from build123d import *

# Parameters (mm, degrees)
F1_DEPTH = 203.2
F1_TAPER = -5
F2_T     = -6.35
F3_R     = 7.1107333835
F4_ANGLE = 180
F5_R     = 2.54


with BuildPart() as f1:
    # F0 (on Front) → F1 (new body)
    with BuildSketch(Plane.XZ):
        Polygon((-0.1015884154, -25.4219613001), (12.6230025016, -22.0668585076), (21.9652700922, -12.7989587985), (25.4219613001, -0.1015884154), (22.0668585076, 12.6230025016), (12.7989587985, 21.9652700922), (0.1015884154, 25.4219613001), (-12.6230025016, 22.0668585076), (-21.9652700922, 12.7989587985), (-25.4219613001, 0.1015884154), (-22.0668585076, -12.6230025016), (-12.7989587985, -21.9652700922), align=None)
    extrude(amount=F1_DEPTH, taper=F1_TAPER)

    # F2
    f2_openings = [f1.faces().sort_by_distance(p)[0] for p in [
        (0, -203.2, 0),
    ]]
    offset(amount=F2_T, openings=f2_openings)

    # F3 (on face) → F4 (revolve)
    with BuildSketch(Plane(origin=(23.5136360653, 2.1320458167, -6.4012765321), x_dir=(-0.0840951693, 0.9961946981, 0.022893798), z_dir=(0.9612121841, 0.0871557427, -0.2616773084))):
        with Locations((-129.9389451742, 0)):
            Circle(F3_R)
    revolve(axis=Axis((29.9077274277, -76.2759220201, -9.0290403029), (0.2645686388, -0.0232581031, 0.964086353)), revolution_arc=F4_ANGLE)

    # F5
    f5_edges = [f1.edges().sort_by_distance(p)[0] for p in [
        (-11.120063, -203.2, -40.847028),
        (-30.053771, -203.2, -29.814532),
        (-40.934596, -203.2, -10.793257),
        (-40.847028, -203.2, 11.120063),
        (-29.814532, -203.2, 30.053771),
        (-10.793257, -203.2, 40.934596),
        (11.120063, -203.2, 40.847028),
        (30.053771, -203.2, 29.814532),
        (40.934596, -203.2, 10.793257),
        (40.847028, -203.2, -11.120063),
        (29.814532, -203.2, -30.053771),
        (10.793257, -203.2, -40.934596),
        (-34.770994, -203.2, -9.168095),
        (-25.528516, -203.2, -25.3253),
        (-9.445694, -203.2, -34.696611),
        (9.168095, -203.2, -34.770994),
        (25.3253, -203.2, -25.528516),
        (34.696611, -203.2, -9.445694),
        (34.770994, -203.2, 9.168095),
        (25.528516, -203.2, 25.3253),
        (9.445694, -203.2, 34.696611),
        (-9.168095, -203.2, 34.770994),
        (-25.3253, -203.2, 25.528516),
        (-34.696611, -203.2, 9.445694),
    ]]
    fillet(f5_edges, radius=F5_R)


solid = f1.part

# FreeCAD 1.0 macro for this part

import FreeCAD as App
import Part
import Sketcher
Q = App.Units.Quantity


def edges_at(feature, points):
    """Names of the edges that pass closest to the given points."""
    edges = feature.Shape.Edges
    near = lambda p: min(range(len(edges)), key=lambda i: edges[i].distToShape(Part.Vertex(*p))[0])
    return sorted({f"Edge{near(p) + 1}" for p in points})


def faces_at(feature, points):
    """Names of the faces that lie closest to the given points."""
    faces = feature.Shape.Faces
    near = lambda p: min(range(len(faces)), key=lambda i: faces[i].distToShape(Part.Vertex(*p))[0])
    return sorted({f"Face{near(p) + 1}" for p in points})


def add_polygon(sketch, points):
    """Adds a closed chain of lines whose ends are joined by coincident constraints."""
    first, n = sketch.GeometryCount, len(points)
    for a, b in zip(points, points[1:] + points[:1]):
        sketch.addGeometry(Part.LineSegment(App.Vector(*a, 0), App.Vector(*b, 0)), False)
    for i in range(n):
        sketch.addConstraint(Sketcher.Constraint("Coincident", first + i, 2, first + (i + 1) % n, 1))

doc = App.newDocument("Part")
body = doc.addObject("PartDesign::Body", "Body")

# Sketch on XZ plane
sketch1 = doc.addObject("Sketcher::SketchObject", "Sketch")
body.addObject(sketch1)
sketch1.AttachmentSupport = (doc.XZ_Plane, [""])
sketch1.MapMode = "FlatFace"
add_polygon(sketch1, [(0, -25), (13, -22), (22, -13), (25, 0), (22, 13), (13, 22), (0, 25), (-13, 22), (-22, 13), (-25, 0), (-22, -13), (-13, -22)])  # lines 0-11
sketch1.addConstraint([
    Sketcher.Constraint("Symmetric", 0, 2, 6, 2, -1, 1),
    Sketcher.Constraint("Symmetric", 1, 2, 7, 2, -1, 1),
    Sketcher.Constraint("Symmetric", 2, 2, 8, 2, -1, 1),
    Sketcher.Constraint("Symmetric", 3, 2, 9, 2, -1, 1),
    Sketcher.Constraint("Symmetric", 4, 2, 10, 2, -1, 1),
    Sketcher.Constraint("Symmetric", 5, 2, 11, 2, -1, 1),
    Sketcher.Constraint("Perpendicular", 0, 3),
    Sketcher.Constraint("Perpendicular", 1, 4),
    Sketcher.Constraint("Perpendicular", 2, 5),
    Sketcher.Constraint("Equal", 0, 1),
    Sketcher.Constraint("Equal", 1, 2),
    Sketcher.Constraint("Equal", 2, 3),
    Sketcher.Constraint("Equal", 3, 4),
    Sketcher.Constraint("Equal", 4, 5),
    Sketcher.Constraint("DistanceY", 0, 2, 1, 2, Q("9.2679 mm")),
    Sketcher.Constraint("Distance", 0, Q("13.159481 mm")),
    Sketcher.Constraint("DistanceY", 0, 2, -1, 1, Q("22.066859 mm")),
    Sketcher.Constraint("DistanceX", -1, 1, 1, 2, Q("21.96527 mm")),
])
pad1 = doc.addObject("PartDesign::Pad", "Pad")
body.addObject(pad1)
pad1.Profile = sketch1
pad1.Length = Q("8 in")
pad1.TaperAngle = 5
doc.recompute()

thickness = doc.addObject("PartDesign::Thickness", "Thickness")
body.addObject(thickness)
thickness.Base = (pad1, faces_at(pad1, [(0, -203.2, 0)]))
thickness.Value = Q("0.25 in")
thickness.Reversed = True
thickness.Join = "Arc"

# Sketch on an angled plane
sketch2 = doc.addObject("Sketcher::SketchObject", "Sketch001")
body.addObject(sketch2)
sketch2.Placement = App.Placement(App.Vector(23.513636, 2.132046, -6.401277), App.Rotation(App.Vector(-0.084095169, 0.996194698, 0.022893798), App.Vector(0.262676873, 0, 0.964883858), App.Vector(0.961212184, 0.087155743, -0.261677308), "ZXY"))
sketch2.addGeometry(Part.Circle(App.Vector(-130, 0, 0), App.Vector(0, 0, 1), 7), False)
sketch2.addGeometry(Part.LineSegment(App.Vector(-79, 1, 0), App.Vector(-79, 11, 0)), True)  # axis
sketch2.addConstraint([
    Sketcher.Constraint("PointOnObject", 0, 3, -1),
    Sketcher.Constraint("Diameter", 0, Q("14.221467 mm")),
    Sketcher.Constraint("Distance", 1, Q("10 mm")),
    Sketcher.Constraint("DistanceX", 0, 3, 1, 2, Q("50.9501 mm")),
    Sketcher.Constraint("DistanceY", -1, 1, 1, 2, Q("11.19258 mm")),
    Sketcher.Constraint("DistanceX", 0, 3, 1, 1, Q("51.183569 mm")),
    Sketcher.Constraint("DistanceX", 0, 3, -1, 1, Q("129.938945 mm")),
])
revolution = doc.addObject("PartDesign::Revolution", "Revolution")
body.addObject(revolution)
revolution.Profile = sketch2
revolution.ReferenceAxis = (sketch2, ["Axis0"])
revolution.Angle = 180
doc.recompute()

fillet = doc.addObject("PartDesign::Fillet", "Fillet")
body.addObject(fillet)
fillet.Base = (revolution, edges_at(revolution, [
    (-11.12, -203.2, -40.847),
    (-30.054, -203.2, -29.815),
    (-40.935, -203.2, -10.793),
    (-40.847, -203.2, 11.12),
    (-29.815, -203.2, 30.054),
    (-10.793, -203.2, 40.935),
    (11.12, -203.2, 40.847),
    (30.054, -203.2, 29.815),
    (40.935, -203.2, 10.793),
    (40.847, -203.2, -11.12),
    (29.815, -203.2, -30.054),
    (10.793, -203.2, -40.935),
    (-34.771, -203.2, -9.168),
    (-25.529, -203.2, -25.325),
    (-9.446, -203.2, -34.697),
    (9.168, -203.2, -34.771),
    (25.325, -203.2, -25.529),
    (34.697, -203.2, -9.446),
    (34.771, -203.2, 9.168),
    (25.529, -203.2, 25.325),
    (9.446, -203.2, 34.697),
    (-9.168, -203.2, 34.771),
    (-25.325, -203.2, 25.529),
    (-34.697, -203.2, 9.446),
]))
fillet.Radius = Q("0.1 in")

doc.recompute()
